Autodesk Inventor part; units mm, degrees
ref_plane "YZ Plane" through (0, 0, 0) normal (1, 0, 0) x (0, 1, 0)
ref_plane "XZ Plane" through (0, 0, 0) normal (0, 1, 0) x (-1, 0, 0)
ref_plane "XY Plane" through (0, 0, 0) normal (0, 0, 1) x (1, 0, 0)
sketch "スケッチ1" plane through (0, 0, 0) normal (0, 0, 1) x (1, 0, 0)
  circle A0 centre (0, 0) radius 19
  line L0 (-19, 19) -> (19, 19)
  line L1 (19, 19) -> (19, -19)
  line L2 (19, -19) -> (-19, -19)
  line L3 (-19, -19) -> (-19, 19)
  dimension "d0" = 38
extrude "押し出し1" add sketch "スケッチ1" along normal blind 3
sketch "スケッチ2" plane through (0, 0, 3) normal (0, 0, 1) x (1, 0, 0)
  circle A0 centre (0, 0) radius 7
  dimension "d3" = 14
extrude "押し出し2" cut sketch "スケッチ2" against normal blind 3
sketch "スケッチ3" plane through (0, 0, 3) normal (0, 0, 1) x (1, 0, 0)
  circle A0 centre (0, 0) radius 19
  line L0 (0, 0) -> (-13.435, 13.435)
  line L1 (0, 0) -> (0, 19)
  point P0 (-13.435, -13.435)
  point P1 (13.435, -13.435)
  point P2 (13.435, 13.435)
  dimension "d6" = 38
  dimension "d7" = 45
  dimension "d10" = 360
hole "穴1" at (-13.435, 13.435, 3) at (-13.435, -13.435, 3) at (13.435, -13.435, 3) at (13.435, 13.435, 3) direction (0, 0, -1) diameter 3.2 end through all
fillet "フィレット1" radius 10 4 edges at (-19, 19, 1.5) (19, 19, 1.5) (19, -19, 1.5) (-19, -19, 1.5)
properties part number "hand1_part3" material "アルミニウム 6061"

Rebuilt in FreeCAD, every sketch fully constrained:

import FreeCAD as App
import Part
import Sketcher


def edges_at(feature, points):
    """Names of the edges that pass closest to the given points."""
    edges = feature.Shape.Edges
    near = lambda p: min(range(len(edges)), key=lambda i: edges[i].distToShape(Part.Vertex(*p))[0])
    return sorted({f"Edge{near(p) + 1}" for p in points})

doc = App.newDocument("Part")
params = doc.addObject("Spreadsheet::Sheet", "Params")
for row, (alias, value) in enumerate([
    ("sketch1_width", "38 mm"),
    ("pad1_length", "3 mm"),
    ("sketch2_diameter", "14 mm"),
    ("pocket1_length", "3 mm"),
    ("sketch3_diameter", "3.2 mm"),
    ("hole_diameter", "3.2 mm"),
    ("fillet_radius", "10 mm"),
], start=1):
    params.set(f"A{row}", alias)
    params.set(f"B{row}", "=" + value)
    params.setAlias(f"B{row}", alias)

body = doc.addObject("PartDesign::Body", "Body")

sketch1 = doc.addObject("Sketcher::SketchObject", "Sketch")
body.addObject(sketch1)
sketch1.AttachmentSupport = (doc.XY_Plane, [""])
sketch1.MapMode = "FlatFace"
sketch1.addGeometry([
    Part.LineSegment(App.Vector(19, -19, 0), App.Vector(19, 19, 0)),
    Part.LineSegment(App.Vector(19, 19, 0), App.Vector(-19, 19, 0)),
    Part.LineSegment(App.Vector(-19, 19, 0), App.Vector(-19, -19, 0)),
    Part.LineSegment(App.Vector(-19, -19, 0), App.Vector(19, -19, 0)),
], False)
sketch1.addConstraint([
    Sketcher.Constraint("Coincident", 0, 2, 1, 1),
    Sketcher.Constraint("Coincident", 1, 2, 2, 1),
    Sketcher.Constraint("Coincident", 2, 2, 3, 1),
    Sketcher.Constraint("Coincident", 3, 2, 0, 1),
    Sketcher.Constraint("Vertical", 0),
    Sketcher.Constraint("Horizontal", 1),
    Sketcher.Constraint("Vertical", 2),
    Sketcher.Constraint("Horizontal", 3),
    Sketcher.Constraint("Symmetric", 0, 2, 2, 2, -1, 1),
    Sketcher.Constraint("Equal", 3, 0),
    Sketcher.Constraint("DistanceX", 1, 2, 1, 1, 38.0),
])
sketch1.setExpression("Constraints[10]", "Params.sketch1_width")
pad1 = doc.addObject("PartDesign::Pad", "Pad")
body.addObject(pad1)
pad1.Profile = sketch1
pad1.setExpression("Length", "Params.pad1_length")

sketch2 = doc.addObject("Sketcher::SketchObject", "Sketch001")
body.addObject(sketch2)
sketch2.AttachmentSupport = (doc.XY_Plane, [""])
sketch2.MapMode = "FlatFace"
sketch2.AttachmentOffset = App.Placement(App.Vector(0, 0, 3), App.Rotation())
sketch2.addGeometry(Part.Circle(App.Vector(0, 0, 0), App.Vector(0, 0, 1), 7), False)
sketch2.addConstraint([
    Sketcher.Constraint("Coincident", 0, 3, -1, 1),
    Sketcher.Constraint("Diameter", 0, 14.0),
])
sketch2.setExpression("Constraints[1]", "Params.sketch2_diameter")
pocket1 = doc.addObject("PartDesign::Pocket", "Pocket")
body.addObject(pocket1)
pocket1.Profile = sketch2
pocket1.setExpression("Length", "Params.pocket1_length")

sketch3 = doc.addObject("Sketcher::SketchObject", "Sketch002")
body.addObject(sketch3)
sketch3.AttachmentSupport = (doc.XY_Plane, [""])
sketch3.MapMode = "FlatFace"
sketch3.AttachmentOffset = App.Placement(App.Vector(0, 0, 3), App.Rotation())
sketch3.addGeometry([
    Part.Circle(App.Vector(-13.4, 13.4, 0), App.Vector(0, 0, 1), 1.6),
    Part.Circle(App.Vector(-13.4, -13.4, 0), App.Vector(0, 0, 1), 1.6),
    Part.Circle(App.Vector(13.4, -13.4, 0), App.Vector(0, 0, 1), 1.6),
    Part.Circle(App.Vector(13.4, 13.4, 0), App.Vector(0, 0, 1), 1.6),
], False)
sketch3.addConstraint([
    Sketcher.Constraint("Equal", 0, 1),
    Sketcher.Constraint("Equal", 1, 2),
    Sketcher.Constraint("Equal", 2, 3),
    Sketcher.Constraint("Symmetric", 0, 3, 2, 3, -1, 1),
    Sketcher.Constraint("Symmetric", 1, 3, 3, 3, -1, 1),
    Sketcher.Constraint("Symmetric", 1, 3, 2, 3, -2),
    Sketcher.Constraint("Diameter", 0, 3.2),
    Sketcher.Constraint("DistanceY", 1, 3, 0, 3, 26.87),
    Sketcher.Constraint("DistanceX", 1, 3, 2, 3, 26.87),
])
sketch3.setExpression("Constraints[6]", "Params.sketch3_diameter")
doc.recompute()
hole = doc.addObject("PartDesign::Hole", "Hole")
body.addObject(hole)
hole.Profile = sketch3
hole.ThreadType = "None"
hole.setExpression("Diameter", "Params.hole_diameter")
hole.DepthType = "ThroughAll"
doc.recompute()

fillet = doc.addObject("PartDesign::Fillet", "Fillet")
body.addObject(fillet)
fillet.Base = (hole, edges_at(hole, [
    (-19, 19, 1.5),
    (19, 19, 1.5),
    (19, -19, 1.5),
    (-19, -19, 1.5),
]))
fillet.setExpression("Radius", "Params.fillet_radius")

doc.recompute()
